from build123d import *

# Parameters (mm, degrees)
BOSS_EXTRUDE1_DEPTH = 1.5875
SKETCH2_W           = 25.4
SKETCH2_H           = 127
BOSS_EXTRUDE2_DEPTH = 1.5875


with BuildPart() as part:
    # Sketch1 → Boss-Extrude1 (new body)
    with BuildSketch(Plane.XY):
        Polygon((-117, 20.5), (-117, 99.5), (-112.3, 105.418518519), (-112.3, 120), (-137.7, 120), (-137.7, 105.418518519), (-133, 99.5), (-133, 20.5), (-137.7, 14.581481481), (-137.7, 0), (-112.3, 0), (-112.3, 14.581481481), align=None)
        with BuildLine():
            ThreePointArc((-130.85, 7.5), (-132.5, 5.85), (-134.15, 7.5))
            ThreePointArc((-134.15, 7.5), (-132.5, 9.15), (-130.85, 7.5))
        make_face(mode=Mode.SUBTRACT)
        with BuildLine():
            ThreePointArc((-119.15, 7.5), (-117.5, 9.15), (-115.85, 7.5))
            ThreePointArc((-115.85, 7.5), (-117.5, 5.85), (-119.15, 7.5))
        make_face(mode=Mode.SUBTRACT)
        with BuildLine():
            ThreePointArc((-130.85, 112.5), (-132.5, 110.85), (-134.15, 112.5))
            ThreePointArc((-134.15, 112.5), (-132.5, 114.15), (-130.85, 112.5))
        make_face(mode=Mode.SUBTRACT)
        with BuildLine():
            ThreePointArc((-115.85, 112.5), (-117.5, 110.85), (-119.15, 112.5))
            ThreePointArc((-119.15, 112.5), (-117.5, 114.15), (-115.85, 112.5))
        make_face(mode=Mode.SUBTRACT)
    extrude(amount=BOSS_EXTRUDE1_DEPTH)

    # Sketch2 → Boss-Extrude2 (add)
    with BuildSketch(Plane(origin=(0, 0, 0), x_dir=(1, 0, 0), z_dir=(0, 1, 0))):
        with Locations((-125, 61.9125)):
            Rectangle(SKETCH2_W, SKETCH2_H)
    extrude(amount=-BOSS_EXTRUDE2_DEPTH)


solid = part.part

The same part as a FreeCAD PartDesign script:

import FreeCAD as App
import Part
import Sketcher

V = App.Vector
Q = App.Units.Quantity

doc = App.newDocument("Part")
params = doc.addObject("Spreadsheet::Sheet", "Params")
for row, (alias, value) in enumerate([
    ("sketch1_width", "1 in"),
    ("pad1_length", "0.0625 in"),
    ("sketch2_width", "1 in"),
    ("sketch2_height", "5 in"),
    ("pad2_length", "0.0625 in"),
], start=1):
    params.set(f"A{row}", alias)
    params.set(f"B{row}", "=" + value)
    params.setAlias(f"B{row}", alias)

body = doc.addObject("PartDesign::Body", "Body")

sketch1 = body.newObject("Sketcher::SketchObject", "Sketch")
sketch1.AttachmentSupport = (doc.getObject("XY_Plane"), [""])
sketch1.MapMode = "FlatFace"
sketch1.addGeometry(Part.LineSegment(V(-117, 20.5, 0), V(-117, 99.5, 0)), False)
sketch1.addGeometry(Part.LineSegment(V(-117, 99.5, 0), V(-112.3, 105.4, 0)), False)
sketch1.addGeometry(Part.LineSegment(V(-112.3, 105.4, 0), V(-112.3, 120, 0)), False)
sketch1.addGeometry(Part.LineSegment(V(-112.3, 120, 0), V(-137.7, 120, 0)), False)
sketch1.addGeometry(Part.LineSegment(V(-137.7, 120, 0), V(-137.7, 105.4, 0)), False)
sketch1.addGeometry(Part.LineSegment(V(-137.7, 105.4, 0), V(-133, 99.5, 0)), False)
sketch1.addGeometry(Part.LineSegment(V(-133, 99.5, 0), V(-133, 20.5, 0)), False)
sketch1.addGeometry(Part.LineSegment(V(-133, 20.5, 0), V(-137.7, 14.6, 0)), False)
sketch1.addGeometry(Part.LineSegment(V(-137.7, 14.6, 0), V(-137.7, 0, 0)), False)
sketch1.addGeometry(Part.LineSegment(V(-137.7, 0, 0), V(-112.3, 0, 0)), False)
sketch1.addGeometry(Part.LineSegment(V(-112.3, 0, 0), V(-112.3, 14.6, 0)), False)
sketch1.addGeometry(Part.LineSegment(V(-112.3, 14.6, 0), V(-117, 20.5, 0)), False)
sketch1.addGeometry(Part.Circle(V(-132.5, 7.5, 0), V(0, 0, 1), 1.6), False)
sketch1.addGeometry(Part.Circle(V(-117.5, 7.5, 0), V(0, 0, 1), 1.6), False)
sketch1.addGeometry(Part.Circle(V(-132.5, 112.5, 0), V(0, 0, 1), 1.6), False)
sketch1.addGeometry(Part.Circle(V(-117.5, 112.5, 0), V(0, 0, 1), 1.6), False)
sketch1.addConstraint(Sketcher.Constraint("Coincident", 0, 2, 1, 1))
sketch1.addConstraint(Sketcher.Constraint("Coincident", 1, 2, 2, 1))
sketch1.addConstraint(Sketcher.Constraint("Coincident", 2, 2, 3, 1))
sketch1.addConstraint(Sketcher.Constraint("Coincident", 3, 2, 4, 1))
sketch1.addConstraint(Sketcher.Constraint("Coincident", 4, 2, 5, 1))
sketch1.addConstraint(Sketcher.Constraint("Coincident", 5, 2, 6, 1))
sketch1.addConstraint(Sketcher.Constraint("Coincident", 6, 2, 7, 1))
sketch1.addConstraint(Sketcher.Constraint("Coincident", 7, 2, 8, 1))
sketch1.addConstraint(Sketcher.Constraint("Coincident", 8, 2, 9, 1))
sketch1.addConstraint(Sketcher.Constraint("Coincident", 9, 2, 10, 1))
sketch1.addConstraint(Sketcher.Constraint("Coincident", 10, 2, 11, 1))
sketch1.addConstraint(Sketcher.Constraint("Coincident", 11, 2, 0, 1))
sketch1.addConstraint(Sketcher.Constraint("Vertical", 0))
sketch1.addConstraint(Sketcher.Constraint("Vertical", 2))
sketch1.addConstraint(Sketcher.Constraint("Horizontal", 3))
sketch1.addConstraint(Sketcher.Constraint("Vertical", 4))
sketch1.addConstraint(Sketcher.Constraint("Vertical", 6))
sketch1.addConstraint(Sketcher.Constraint("Vertical", 8))
sketch1.addConstraint(Sketcher.Constraint("Horizontal", 9))
sketch1.addConstraint(Sketcher.Constraint("Vertical", 10))
sketch1.addConstraint(Sketcher.Constraint("Equal", 12, 13))
sketch1.addConstraint(Sketcher.Constraint("Equal", 13, 14))
sketch1.addConstraint(Sketcher.Constraint("Equal", 14, 15))
sketch1.addConstraint(Sketcher.Constraint("PointOnObject", 8, 2, -1))
sketch1.addConstraint(Sketcher.Constraint("Parallel", 1, 7))
sketch1.addConstraint(Sketcher.Constraint("Parallel", 5, 11))
sketch1.addConstraint(Sketcher.Constraint("Horizontal", 12, 3, 13, 3))
sketch1.addConstraint(Sketcher.Constraint("Horizontal", 14, 3, 15, 3))
sketch1.addConstraint(Sketcher.Constraint("Horizontal", 1, 2, 4, 2))
sketch1.addConstraint(Sketcher.Constraint("Horizontal", 0, 2, 5, 2))
sketch1.addConstraint(Sketcher.Constraint("Horizontal", 7, 2, 10, 2))
sketch1.addConstraint(Sketcher.Constraint("Horizontal", 6, 2, 11, 2))
sketch1.addConstraint(Sketcher.Constraint("Vertical", 12, 3, 14, 3))
sketch1.addConstraint(Sketcher.Constraint("Vertical", 13, 3, 15, 3))
sketch1.addConstraint(Sketcher.Constraint("Vertical", 4, 2, 7, 2))
sketch1.addConstraint(Sketcher.Constraint("Vertical", 2, 2, 9, 2))
sketch1.addConstraint(Sketcher.Constraint("Equal", 4, 8))
sketch1.addConstraint(Sketcher.Constraint("DistanceX", 3, 2, 3, 1, Q("1 in")))
sketch1.addConstraint(Sketcher.Constraint("Diameter", 12, Q("3.3 mm")))
sketch1.addConstraint(Sketcher.Constraint("DistanceY", 0, 1, 0, 2, Q("79 mm")))
sketch1.addConstraint(Sketcher.Constraint("DistanceY", 2, 1, 2, 2, Q("14.581481 mm")))
sketch1.addConstraint(Sketcher.Constraint("DistanceX", 12, 3, -1, 1, Q("132.5 mm")))
sketch1.addConstraint(Sketcher.Constraint("DistanceY", -1, 1, 12, 3, Q("7.5 mm")))
sketch1.addConstraint(Sketcher.Constraint("DistanceX", 13, 3, -1, 1, Q("117.5 mm")))
sketch1.addConstraint(Sketcher.Constraint("DistanceY", -1, 1, 14, 3, Q("112.5 mm")))
sketch1.addConstraint(Sketcher.Constraint("DistanceX", 0, 2, -1, 1, Q("117 mm")))
sketch1.addConstraint(Sketcher.Constraint("DistanceY", -1, 1, 0, 2, Q("99.5 mm")))
sketch1.addConstraint(Sketcher.Constraint("DistanceX", 1, 2, -1, 1, Q("112.3 mm")))
sketch1.setExpression("Constraints[37]", "Params.sketch1_width")
pad1 = body.newObject("PartDesign::Pad", "Pad")
pad1.Profile = sketch1
pad1.setExpression("Length", "Params.pad1_length")

sketch2 = body.newObject("Sketcher::SketchObject", "Sketch001")
sketch2.AttachmentSupport = (doc.getObject("XZ_Plane"), [""])
sketch2.MapMode = "FlatFace"
sketch2.addGeometry(Part.LineSegment(V(-138, -125, 0), V(-138, 2, 0)), False)
sketch2.addGeometry(Part.LineSegment(V(-138, 2, 0), V(-112, 2, 0)), False)
sketch2.addGeometry(Part.LineSegment(V(-112, 2, 0), V(-112, -125, 0)), False)
sketch2.addGeometry(Part.LineSegment(V(-112, -125, 0), V(-138, -125, 0)), False)
sketch2.addConstraint(Sketcher.Constraint("Coincident", 0, 2, 1, 1))
sketch2.addConstraint(Sketcher.Constraint("Coincident", 1, 2, 2, 1))
sketch2.addConstraint(Sketcher.Constraint("Coincident", 2, 2, 3, 1))
sketch2.addConstraint(Sketcher.Constraint("Coincident", 3, 2, 0, 1))
sketch2.addConstraint(Sketcher.Constraint("Vertical", 0))
sketch2.addConstraint(Sketcher.Constraint("Horizontal", 1))
sketch2.addConstraint(Sketcher.Constraint("Vertical", 2))
sketch2.addConstraint(Sketcher.Constraint("Horizontal", 3))
sketch2.addConstraint(Sketcher.Constraint("DistanceX", 1, 1, 1, 2, Q("1 in")))
sketch2.addConstraint(Sketcher.Constraint("DistanceY", 0, 1, 0, 2, Q("5 in")))
sketch2.addConstraint(Sketcher.Constraint("DistanceY", -1, 1, 0, 2, Q("0.0625 in")))
sketch2.addConstraint(Sketcher.Constraint("DistanceX", 0, 2, -1, 1, Q("137.7 mm")))
sketch2.setExpression("Constraints[8]", "Params.sketch2_width")
sketch2.setExpression("Constraints[9]", "Params.sketch2_height")
pad2 = body.newObject("PartDesign::Pad", "Pad001")
pad2.Profile = sketch2
pad2.setExpression("Length", "Params.pad2_length")

doc.recompute()
